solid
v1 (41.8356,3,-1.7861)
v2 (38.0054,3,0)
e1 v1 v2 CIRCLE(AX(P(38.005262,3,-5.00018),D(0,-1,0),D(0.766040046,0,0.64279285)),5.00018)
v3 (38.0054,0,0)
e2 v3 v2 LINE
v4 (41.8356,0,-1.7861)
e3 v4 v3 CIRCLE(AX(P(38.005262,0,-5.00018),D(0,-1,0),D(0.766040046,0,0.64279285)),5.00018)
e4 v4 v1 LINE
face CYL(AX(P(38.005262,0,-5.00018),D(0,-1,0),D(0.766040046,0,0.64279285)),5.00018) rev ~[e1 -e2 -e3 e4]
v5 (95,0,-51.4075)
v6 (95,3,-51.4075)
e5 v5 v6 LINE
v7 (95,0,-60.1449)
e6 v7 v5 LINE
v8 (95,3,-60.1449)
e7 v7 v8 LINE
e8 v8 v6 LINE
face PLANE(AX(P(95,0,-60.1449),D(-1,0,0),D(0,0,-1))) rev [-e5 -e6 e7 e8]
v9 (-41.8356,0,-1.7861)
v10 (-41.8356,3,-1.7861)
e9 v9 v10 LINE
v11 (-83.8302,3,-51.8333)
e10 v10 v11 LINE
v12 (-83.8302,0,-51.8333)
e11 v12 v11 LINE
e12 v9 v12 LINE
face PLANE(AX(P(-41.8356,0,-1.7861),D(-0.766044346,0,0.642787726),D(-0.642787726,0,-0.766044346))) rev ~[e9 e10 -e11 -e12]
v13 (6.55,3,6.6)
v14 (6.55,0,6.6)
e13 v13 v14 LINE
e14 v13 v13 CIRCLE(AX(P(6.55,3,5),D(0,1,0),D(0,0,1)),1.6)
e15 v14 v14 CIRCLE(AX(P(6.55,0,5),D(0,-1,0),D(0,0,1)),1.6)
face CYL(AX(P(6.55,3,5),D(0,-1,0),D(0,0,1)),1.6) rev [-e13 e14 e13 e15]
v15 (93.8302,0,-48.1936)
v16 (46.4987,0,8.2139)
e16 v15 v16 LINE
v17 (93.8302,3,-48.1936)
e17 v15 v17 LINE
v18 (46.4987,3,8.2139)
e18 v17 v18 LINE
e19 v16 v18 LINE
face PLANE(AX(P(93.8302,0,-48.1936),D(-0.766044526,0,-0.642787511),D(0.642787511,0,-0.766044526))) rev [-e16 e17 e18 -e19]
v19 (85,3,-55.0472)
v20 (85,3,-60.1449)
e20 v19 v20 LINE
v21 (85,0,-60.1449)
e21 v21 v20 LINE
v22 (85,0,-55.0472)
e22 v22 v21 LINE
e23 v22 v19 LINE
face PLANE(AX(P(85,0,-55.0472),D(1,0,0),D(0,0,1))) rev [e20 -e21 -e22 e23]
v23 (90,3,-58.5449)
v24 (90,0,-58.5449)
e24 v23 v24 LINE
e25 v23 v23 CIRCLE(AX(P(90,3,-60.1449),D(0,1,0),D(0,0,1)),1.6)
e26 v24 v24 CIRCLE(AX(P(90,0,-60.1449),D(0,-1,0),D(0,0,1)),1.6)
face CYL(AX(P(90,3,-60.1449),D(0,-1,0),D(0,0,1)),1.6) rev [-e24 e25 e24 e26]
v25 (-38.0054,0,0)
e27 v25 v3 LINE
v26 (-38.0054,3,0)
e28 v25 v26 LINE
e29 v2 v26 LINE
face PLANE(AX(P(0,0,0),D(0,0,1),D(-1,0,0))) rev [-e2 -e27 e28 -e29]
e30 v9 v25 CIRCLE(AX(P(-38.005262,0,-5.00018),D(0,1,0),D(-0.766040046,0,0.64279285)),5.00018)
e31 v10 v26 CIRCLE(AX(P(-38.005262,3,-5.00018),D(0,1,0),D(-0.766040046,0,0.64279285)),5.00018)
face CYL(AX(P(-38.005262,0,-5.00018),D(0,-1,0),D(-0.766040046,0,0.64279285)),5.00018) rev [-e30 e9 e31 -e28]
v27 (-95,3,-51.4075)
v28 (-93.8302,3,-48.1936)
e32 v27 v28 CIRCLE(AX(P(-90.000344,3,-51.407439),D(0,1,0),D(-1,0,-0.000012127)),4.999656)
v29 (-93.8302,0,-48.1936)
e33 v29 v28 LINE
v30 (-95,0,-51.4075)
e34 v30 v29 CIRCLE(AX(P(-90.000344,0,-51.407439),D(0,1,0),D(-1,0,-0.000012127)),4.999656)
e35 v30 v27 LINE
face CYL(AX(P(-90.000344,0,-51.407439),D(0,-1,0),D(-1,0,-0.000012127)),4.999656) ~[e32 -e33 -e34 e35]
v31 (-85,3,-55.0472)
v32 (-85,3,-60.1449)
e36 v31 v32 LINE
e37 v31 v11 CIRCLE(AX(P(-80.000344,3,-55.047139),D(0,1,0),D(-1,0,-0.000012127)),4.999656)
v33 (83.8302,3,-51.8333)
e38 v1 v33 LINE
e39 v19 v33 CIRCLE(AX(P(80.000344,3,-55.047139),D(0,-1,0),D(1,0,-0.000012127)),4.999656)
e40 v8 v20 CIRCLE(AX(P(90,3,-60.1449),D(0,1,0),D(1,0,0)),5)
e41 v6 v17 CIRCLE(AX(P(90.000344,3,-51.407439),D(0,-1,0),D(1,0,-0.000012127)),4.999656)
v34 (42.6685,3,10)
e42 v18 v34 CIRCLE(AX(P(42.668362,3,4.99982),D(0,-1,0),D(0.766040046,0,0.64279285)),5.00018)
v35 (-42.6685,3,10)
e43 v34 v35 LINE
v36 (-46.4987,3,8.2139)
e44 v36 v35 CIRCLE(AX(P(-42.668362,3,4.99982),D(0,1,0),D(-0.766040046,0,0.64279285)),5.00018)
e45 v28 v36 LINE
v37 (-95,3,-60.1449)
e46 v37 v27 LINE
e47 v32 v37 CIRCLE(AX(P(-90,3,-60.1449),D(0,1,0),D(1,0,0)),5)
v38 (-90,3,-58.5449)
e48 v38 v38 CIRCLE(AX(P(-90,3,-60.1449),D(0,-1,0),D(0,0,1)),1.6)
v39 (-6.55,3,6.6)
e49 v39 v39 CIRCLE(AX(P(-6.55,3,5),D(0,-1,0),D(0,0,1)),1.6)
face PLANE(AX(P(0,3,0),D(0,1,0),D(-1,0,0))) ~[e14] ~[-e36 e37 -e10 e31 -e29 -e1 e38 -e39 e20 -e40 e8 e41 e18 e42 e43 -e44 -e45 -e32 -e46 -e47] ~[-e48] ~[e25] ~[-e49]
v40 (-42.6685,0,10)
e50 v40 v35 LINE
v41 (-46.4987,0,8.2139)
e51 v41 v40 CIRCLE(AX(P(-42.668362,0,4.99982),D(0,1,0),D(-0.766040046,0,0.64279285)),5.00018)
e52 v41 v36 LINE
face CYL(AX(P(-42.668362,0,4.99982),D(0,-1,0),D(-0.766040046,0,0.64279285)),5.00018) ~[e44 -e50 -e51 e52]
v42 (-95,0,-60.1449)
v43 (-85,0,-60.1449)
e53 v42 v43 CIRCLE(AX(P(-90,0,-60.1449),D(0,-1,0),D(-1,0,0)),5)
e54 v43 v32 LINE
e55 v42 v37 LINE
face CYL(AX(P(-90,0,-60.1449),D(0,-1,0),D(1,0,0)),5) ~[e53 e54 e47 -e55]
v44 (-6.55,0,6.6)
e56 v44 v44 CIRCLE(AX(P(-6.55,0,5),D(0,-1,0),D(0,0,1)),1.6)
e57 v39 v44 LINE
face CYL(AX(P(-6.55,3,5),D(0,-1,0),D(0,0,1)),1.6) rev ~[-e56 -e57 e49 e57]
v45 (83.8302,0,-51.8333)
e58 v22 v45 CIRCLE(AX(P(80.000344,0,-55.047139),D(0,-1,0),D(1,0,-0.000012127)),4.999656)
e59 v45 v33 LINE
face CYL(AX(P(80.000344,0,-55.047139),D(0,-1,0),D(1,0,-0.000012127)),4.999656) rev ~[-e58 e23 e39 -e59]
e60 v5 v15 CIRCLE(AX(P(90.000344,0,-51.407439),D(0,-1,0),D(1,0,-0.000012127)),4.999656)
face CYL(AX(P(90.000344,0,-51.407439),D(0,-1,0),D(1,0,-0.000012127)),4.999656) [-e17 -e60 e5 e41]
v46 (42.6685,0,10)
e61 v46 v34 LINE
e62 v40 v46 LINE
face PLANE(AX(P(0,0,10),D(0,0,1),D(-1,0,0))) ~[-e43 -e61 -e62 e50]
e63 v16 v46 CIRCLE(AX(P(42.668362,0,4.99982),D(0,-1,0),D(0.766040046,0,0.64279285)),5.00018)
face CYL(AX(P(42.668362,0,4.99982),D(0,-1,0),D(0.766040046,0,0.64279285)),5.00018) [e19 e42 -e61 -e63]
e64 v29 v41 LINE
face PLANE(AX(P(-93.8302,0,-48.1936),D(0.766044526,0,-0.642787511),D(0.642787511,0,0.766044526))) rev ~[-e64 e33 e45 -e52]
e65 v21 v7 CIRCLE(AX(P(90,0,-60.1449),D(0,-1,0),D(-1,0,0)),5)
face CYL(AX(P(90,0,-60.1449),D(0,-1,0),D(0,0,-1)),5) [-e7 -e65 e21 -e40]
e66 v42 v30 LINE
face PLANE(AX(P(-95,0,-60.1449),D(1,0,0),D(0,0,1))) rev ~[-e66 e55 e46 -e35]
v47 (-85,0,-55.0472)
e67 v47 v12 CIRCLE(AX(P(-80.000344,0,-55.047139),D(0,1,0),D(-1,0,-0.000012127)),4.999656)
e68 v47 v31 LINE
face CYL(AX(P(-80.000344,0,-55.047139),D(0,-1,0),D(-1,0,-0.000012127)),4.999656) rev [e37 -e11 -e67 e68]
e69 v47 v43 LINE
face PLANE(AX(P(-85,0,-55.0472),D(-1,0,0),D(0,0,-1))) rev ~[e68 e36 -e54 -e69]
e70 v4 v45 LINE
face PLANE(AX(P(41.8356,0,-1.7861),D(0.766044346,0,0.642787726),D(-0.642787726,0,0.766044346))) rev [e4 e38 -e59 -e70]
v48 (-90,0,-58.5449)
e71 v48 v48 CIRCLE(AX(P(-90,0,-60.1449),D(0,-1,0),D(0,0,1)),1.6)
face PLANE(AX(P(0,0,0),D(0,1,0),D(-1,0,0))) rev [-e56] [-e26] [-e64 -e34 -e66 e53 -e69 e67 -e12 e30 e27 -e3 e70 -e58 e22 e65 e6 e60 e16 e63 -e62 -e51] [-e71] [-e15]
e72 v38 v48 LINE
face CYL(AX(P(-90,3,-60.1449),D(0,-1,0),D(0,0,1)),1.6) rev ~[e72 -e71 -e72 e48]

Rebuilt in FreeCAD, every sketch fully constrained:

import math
import FreeCAD as App
import Part
import Sketcher

V = App.Vector
Q = App.Units.Quantity

doc = App.newDocument("Part")
body = doc.addObject("PartDesign::Body", "Body")

sketch1 = body.newObject("Sketcher::SketchObject", "Sketch")
sketch1.AttachmentSupport = (doc.getObject("XZ_Plane"), [""])
sketch1.MapMode = "FlatFace"
sketch1.addGeometry([
    Part.LineSegment(V(0, 10, 0), V(0, 0, 0)),
    Part.LineSegment(V(0, 0, 0), V(-38, 0, 0)),
    Part.ArcOfCircle(Part.Circle(V(-38, -5, 0), V(0, 0, 1), 5), math.radians(90), math.radians(140)),
    Part.LineSegment(V(-41.8, -1.8, 0), V(-83.8, -51.8, 0)),
    Part.ArcOfCircle(Part.Circle(V(-80, -55, 0), V(0, 0, 1), 5), math.radians(140), math.radians(180)),
    Part.LineSegment(V(-85, -55, 0), V(-85, -60.1, 0)),
    Part.ArcOfCircle(Part.Circle(V(-90, -60.1, 0), V(0, 0, 1), 5), math.radians(180), math.radians(360)),
    Part.LineSegment(V(-95, -60.1, 0), V(-95, -51.4, 0)),
    Part.ArcOfCircle(Part.Circle(V(-90, -51.4, 0), V(0, 0, 1), 5), math.radians(140), math.radians(180)),
    Part.LineSegment(V(-93.8, -48.2, 0), V(-46.5, 8.2, 0)),
    Part.ArcOfCircle(Part.Circle(V(-42.7, 5, 0), V(0, 0, 1), 5), math.radians(90), math.radians(140)),
    Part.LineSegment(V(-42.7, 10, 0), V(0, 10, 0)),
], False)
sketch1.addConstraint([
    Sketcher.Constraint("Coincident", 0, 2, 1, 1),
    Sketcher.Constraint("Tangent", 1, 2, 2, 1),
    Sketcher.Constraint("Tangent", 2, 2, 3, 1),
    Sketcher.Constraint("Tangent", 3, 2, 4, 1),
    Sketcher.Constraint("Tangent", 4, 2, 5, 1),
    Sketcher.Constraint("Tangent", 5, 2, 6, 2),
    Sketcher.Constraint("Tangent", 6, 1, 7, 1),
    Sketcher.Constraint("Tangent", 7, 2, 8, 2),
    Sketcher.Constraint("Tangent", 8, 1, 9, 1),
    Sketcher.Constraint("Tangent", 9, 2, 10, 2),
    Sketcher.Constraint("Tangent", 10, 1, 11, 1),
    Sketcher.Constraint("Coincident", 11, 2, 0, 1),
    Sketcher.Constraint("Vertical", 0),
    Sketcher.Constraint("Horizontal", 1),
    Sketcher.Constraint("Vertical", 5),
    Sketcher.Constraint("Vertical", 7),
    Sketcher.Constraint("Horizontal", 11),
    Sketcher.Constraint("Coincident", 0, 2, -1, 1),
    Sketcher.Constraint("Equal", 2, 4),
    Sketcher.Constraint("Equal", 4, 6),
    Sketcher.Constraint("Equal", 6, 8),
    Sketcher.Constraint("Equal", 8, 10),
    Sketcher.Constraint("Parallel", 3, 9),
    Sketcher.Constraint("Angle", 3, Q("-130 deg")),
    Sketcher.Constraint("Radius", 2, Q("5 mm")),
    Sketcher.Constraint("DistanceY", 0, 2, 0, 1, Q("0.3937 in")),
    Sketcher.Constraint("DistanceY", 7, 1, 7, 2, Q("0.344 in")),
    Sketcher.Constraint("Distance", 9, Q("2.899 in")),
    Sketcher.Constraint("DistanceY", 5, 2, 5, 1, Q("0.2007 in")),
    Sketcher.Constraint("DistanceX", 1, 2, 1, 1, Q("38.0054 mm")),
])
pad1 = body.newObject("PartDesign::Pad", "Pad")
pad1.Profile = sketch1
pad1.Length = Q("0.1181102 in")
pad1.Reversed = True

sketch2 = body.newObject("Sketcher::SketchObject", "Sketch001")
sketch2.AttachmentSupport = (doc.getObject("XZ_Plane"), [""])
sketch2.MapMode = "FlatFace"
sketch2.AttachmentOffset = App.Placement(V(0, 0, -0.1181102 * 25.4), App.Rotation())
sketch2.addGeometry([
    Part.Circle(V(-6.5, 5, 0), V(0, 0, 1), 1.6),
    Part.Circle(V(-90, -60.1, 0), V(0, 0, 1), 1.6),
], False)
sketch2.addConstraint([
    Sketcher.Constraint("Equal", 0, 1),
    Sketcher.Constraint("Diameter", 0, Q("3.2 mm")),
    Sketcher.Constraint("DistanceX", 1, 3, -1, 1, Q("3.5433 in")),
    Sketcher.Constraint("DistanceY", 1, 3, -1, 1, Q("2.3679 in")),
    Sketcher.Constraint("DistanceX", 0, 3, -1, 1, Q("6.55 mm")),
    Sketcher.Constraint("DistanceY", -1, 1, 0, 3, Q("5 mm")),
])
doc.recompute()
hole = body.newObject("PartDesign::Hole", "Hole")
hole.Profile = sketch2
hole.ThreadType = "None"
hole.Diameter = 3.2
hole.DepthType = "ThroughAll"
hole.Reversed = True
doc.recompute()

mirrored = body.newObject("PartDesign::Mirrored", "Mirrored")
mirrored.Originals = [pad1, hole]
mirrored.MirrorPlane = (doc.getObject("YZ_Plane"), [""])
body.Tip = mirrored

doc.recompute()
